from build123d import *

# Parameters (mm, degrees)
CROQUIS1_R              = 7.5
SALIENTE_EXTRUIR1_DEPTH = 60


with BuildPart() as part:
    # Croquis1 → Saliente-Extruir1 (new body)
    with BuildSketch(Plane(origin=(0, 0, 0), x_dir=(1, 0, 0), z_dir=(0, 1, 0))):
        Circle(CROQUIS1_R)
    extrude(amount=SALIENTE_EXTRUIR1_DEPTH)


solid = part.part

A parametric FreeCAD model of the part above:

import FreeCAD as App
import Part
import Sketcher
Q = App.Units.Quantity

doc = App.newDocument("Part")
body = doc.addObject("PartDesign::Body", "Body")

sketch1 = body.newObject("Sketcher::SketchObject", "Sketch")
sketch1.AttachmentSupport = (doc.getObject("XZ_Plane"), [""])
sketch1.MapMode = "FlatFace"
sketch1.addGeometry(Part.Circle(App.Vector(0, 0, 0), App.Vector(0, 0, 1), 8), False)
sketch1.addConstraint([
    Sketcher.Constraint("Coincident", 0, 3, -1, 1),
    Sketcher.Constraint("Diameter", 0, Q("15 mm")),
])
pad1 = body.newObject("PartDesign::Pad", "Pad")
pad1.Profile = sketch1
pad1.Length = 60
pad1.Reversed = True

doc.recompute()
